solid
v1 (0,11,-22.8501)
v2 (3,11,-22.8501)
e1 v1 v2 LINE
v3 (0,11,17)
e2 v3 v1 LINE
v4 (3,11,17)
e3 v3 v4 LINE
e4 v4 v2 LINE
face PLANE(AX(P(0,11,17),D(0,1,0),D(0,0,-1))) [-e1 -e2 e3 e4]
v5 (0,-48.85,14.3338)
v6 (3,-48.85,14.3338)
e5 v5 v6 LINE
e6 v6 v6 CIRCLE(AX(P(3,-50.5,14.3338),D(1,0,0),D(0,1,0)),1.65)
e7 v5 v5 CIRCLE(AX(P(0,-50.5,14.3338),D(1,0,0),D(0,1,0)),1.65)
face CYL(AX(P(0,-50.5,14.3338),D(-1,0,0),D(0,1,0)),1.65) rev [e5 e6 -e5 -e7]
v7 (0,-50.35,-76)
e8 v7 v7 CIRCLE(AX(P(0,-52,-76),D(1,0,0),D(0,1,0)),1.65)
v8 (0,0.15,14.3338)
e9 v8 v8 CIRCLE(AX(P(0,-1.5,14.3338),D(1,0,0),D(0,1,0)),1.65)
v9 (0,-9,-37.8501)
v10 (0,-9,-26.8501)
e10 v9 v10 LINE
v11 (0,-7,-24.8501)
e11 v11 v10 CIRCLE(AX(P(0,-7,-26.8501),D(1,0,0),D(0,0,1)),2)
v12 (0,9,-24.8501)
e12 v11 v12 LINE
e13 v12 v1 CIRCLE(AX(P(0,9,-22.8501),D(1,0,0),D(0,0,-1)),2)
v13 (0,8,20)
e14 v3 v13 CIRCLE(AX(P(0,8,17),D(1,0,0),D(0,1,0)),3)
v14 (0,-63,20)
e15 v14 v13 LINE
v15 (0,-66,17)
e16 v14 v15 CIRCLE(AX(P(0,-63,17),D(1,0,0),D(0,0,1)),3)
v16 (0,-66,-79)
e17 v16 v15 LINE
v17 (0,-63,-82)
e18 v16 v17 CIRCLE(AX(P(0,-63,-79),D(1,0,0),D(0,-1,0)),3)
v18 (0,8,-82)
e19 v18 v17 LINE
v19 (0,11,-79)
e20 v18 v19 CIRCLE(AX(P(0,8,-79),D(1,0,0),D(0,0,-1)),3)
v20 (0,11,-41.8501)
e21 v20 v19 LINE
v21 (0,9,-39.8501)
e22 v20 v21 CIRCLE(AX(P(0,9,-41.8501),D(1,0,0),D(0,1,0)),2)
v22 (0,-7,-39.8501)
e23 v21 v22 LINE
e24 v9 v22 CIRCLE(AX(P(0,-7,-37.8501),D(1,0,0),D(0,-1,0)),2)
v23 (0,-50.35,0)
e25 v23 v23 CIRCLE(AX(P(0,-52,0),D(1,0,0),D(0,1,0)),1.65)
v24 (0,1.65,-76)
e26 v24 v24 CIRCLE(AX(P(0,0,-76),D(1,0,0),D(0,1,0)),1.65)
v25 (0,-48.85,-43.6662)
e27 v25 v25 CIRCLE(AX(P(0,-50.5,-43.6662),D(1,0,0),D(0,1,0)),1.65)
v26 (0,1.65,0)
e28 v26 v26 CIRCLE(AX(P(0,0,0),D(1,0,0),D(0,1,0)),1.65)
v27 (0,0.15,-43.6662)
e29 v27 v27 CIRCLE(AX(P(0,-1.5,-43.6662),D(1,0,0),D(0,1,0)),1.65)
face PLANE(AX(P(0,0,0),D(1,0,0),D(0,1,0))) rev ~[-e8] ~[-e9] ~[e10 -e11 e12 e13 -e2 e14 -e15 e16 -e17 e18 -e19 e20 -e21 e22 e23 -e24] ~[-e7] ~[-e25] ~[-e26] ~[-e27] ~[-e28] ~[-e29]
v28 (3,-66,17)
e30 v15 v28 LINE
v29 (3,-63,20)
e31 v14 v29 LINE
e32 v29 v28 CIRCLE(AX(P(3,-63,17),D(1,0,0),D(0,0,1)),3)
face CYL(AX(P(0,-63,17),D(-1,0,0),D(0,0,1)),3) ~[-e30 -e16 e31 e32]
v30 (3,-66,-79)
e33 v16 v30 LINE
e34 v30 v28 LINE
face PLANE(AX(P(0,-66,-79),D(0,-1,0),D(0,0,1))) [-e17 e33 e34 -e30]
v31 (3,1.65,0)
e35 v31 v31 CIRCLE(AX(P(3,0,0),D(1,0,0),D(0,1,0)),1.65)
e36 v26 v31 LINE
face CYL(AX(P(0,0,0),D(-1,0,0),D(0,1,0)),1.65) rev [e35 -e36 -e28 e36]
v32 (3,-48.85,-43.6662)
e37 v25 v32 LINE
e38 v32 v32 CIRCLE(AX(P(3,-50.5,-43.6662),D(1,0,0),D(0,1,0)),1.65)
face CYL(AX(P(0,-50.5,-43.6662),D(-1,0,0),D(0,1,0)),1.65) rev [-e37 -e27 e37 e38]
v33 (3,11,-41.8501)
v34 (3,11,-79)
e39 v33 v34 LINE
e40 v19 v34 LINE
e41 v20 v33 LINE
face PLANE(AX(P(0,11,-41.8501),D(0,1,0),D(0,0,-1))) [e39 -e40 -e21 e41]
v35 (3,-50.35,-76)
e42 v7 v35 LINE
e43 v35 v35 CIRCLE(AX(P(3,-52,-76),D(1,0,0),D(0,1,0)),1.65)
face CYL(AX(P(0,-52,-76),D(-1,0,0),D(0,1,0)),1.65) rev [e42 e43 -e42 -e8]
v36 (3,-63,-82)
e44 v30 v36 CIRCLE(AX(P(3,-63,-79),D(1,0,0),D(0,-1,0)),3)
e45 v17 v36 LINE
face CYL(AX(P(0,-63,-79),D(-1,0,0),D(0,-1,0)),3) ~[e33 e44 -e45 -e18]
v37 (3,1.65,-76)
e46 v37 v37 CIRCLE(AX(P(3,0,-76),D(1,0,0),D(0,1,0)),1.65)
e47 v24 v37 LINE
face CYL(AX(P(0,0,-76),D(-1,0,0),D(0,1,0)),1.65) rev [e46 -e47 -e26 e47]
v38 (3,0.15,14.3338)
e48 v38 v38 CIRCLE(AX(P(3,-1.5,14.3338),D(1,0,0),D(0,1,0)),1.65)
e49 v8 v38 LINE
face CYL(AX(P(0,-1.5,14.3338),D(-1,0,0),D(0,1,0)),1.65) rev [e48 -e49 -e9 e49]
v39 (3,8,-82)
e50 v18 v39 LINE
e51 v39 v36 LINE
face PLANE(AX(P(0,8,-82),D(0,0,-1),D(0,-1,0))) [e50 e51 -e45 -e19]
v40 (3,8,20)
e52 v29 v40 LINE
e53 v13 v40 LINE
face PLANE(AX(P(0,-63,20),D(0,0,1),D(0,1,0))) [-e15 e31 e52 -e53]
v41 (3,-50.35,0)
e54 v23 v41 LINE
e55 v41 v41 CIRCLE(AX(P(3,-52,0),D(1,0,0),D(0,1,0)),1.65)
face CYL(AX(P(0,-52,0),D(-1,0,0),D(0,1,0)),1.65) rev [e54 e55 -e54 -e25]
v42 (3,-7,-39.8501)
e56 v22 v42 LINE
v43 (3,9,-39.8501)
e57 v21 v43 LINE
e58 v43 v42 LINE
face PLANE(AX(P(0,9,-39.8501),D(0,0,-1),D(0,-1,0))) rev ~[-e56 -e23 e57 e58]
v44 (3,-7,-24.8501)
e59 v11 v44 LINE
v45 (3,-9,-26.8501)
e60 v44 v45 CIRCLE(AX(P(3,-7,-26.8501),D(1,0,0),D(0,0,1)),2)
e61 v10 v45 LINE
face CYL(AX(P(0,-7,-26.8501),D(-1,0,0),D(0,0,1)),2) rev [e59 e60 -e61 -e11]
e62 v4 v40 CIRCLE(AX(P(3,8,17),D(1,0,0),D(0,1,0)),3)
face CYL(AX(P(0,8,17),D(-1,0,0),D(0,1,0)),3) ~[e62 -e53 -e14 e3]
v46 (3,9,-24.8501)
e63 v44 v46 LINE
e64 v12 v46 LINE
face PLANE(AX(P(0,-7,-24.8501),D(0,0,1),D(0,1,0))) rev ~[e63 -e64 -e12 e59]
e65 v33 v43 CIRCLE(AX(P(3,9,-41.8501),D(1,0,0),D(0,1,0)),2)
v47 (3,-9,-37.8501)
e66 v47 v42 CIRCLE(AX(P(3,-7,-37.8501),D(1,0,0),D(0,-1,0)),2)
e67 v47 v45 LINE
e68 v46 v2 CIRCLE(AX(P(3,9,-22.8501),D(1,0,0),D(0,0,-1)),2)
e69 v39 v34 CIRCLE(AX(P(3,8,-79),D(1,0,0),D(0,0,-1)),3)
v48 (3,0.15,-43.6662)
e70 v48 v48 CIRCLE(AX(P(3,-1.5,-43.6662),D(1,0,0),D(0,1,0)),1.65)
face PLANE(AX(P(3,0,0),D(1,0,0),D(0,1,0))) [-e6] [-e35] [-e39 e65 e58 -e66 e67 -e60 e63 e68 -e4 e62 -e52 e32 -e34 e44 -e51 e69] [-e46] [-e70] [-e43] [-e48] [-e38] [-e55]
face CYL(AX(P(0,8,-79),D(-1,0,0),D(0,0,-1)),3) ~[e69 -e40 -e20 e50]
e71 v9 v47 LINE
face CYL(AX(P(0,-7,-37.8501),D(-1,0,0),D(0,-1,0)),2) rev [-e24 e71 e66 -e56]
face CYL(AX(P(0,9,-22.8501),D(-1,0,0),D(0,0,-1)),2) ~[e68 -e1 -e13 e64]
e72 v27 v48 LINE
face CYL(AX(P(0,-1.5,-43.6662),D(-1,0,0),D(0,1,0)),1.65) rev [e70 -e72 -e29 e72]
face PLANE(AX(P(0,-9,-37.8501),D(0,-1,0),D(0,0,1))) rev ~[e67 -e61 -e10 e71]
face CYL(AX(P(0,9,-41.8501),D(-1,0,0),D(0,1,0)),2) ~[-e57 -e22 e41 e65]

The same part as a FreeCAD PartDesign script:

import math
import FreeCAD as App
import Part
import Sketcher

V = App.Vector

doc = App.newDocument("Part")
body = doc.addObject("PartDesign::Body", "Body")

# Sketch on YZ plane
sketch1 = doc.addObject("Sketcher::SketchObject", "Sketch")
body.addObject(sketch1)
sketch1.AttachmentSupport = (doc.YZ_Plane, [""])
sketch1.MapMode = "FlatFace"
sketch1.addGeometry([
    Part.LineSegment(V(8, 20, 0), V(-63, 20, 0)),  # 0
    Part.ArcOfCircle(Part.Circle(V(-63, 17, 0), V(0, 0, 1), 3), math.radians(90), math.radians(180)),  # 1
    Part.LineSegment(V(-66, 17, 0), V(-66, -79, 0)),  # 2
    Part.ArcOfCircle(Part.Circle(V(-63, -79, 0), V(0, 0, 1), 3), math.radians(180), math.radians(270)),  # 3
    Part.LineSegment(V(-63, -82, 0), V(8, -82, 0)),  # 4
    Part.ArcOfCircle(Part.Circle(V(8, -79, 0), V(0, 0, 1), 3), math.radians(-90), math.radians(0)),  # 5
    Part.LineSegment(V(11, -79, 0), V(11, -41.8501, 0)),  # 6
    Part.ArcOfCircle(Part.Circle(V(9, -41.8501, 0), V(0, 0, 1), 2), math.radians(0), math.radians(90)),  # 7
    Part.LineSegment(V(9, -39.8501, 0), V(-7, -39.8501, 0)),  # 8
    Part.ArcOfCircle(Part.Circle(V(-7, -37.8501, 0), V(0, 0, 1), 2), math.radians(180), math.radians(270)),  # 9
    Part.LineSegment(V(-9, -37.8501, 0), V(-9, -26.8501, 0)),  # 10
    Part.ArcOfCircle(Part.Circle(V(-7, -26.8501, 0), V(0, 0, 1), 2), math.radians(90), math.radians(180)),  # 11
    Part.LineSegment(V(-7, -24.8501, 0), V(9, -24.8501, 0)),  # 12
    Part.ArcOfCircle(Part.Circle(V(9, -22.8501, 0), V(0, 0, 1), 2), math.radians(-90), math.radians(0)),  # 13
    Part.LineSegment(V(11, -22.8501, 0), V(11, 17, 0)),  # 14
    Part.ArcOfCircle(Part.Circle(V(8, 17, 0), V(0, 0, 1), 3), math.radians(0), math.radians(90)),  # 15
    Part.Circle(V(-52, -76, 0), V(0, 0, 1), 1.65),  # 16
    Part.Circle(V(-50.5, -43.6662, 0), V(0, 0, 1), 1.65),  # 17
    Part.Circle(V(0, -76, 0), V(0, 0, 1), 1.65),  # 18
    Part.Circle(V(-1.5, -43.6662, 0), V(0, 0, 1), 1.65),  # 19
    Part.Circle(V(-52, 0, 0), V(0, 0, 1), 1.65),  # 20
    Part.Circle(V(-50.5, 14.3338, 0), V(0, 0, 1), 1.65),  # 21
    Part.Circle(V(0, 0, 0), V(0, 0, 1), 1.65),  # 22
    Part.Circle(V(-1.5, 14.3338, 0), V(0, 0, 1), 1.65),  # 23
], False)
sketch1.addConstraint([
    Sketcher.Constraint("Tangent", 0, 2, 1, 1),
    Sketcher.Constraint("Tangent", 1, 2, 2, 1),
    Sketcher.Constraint("Tangent", 2, 2, 3, 1),
    Sketcher.Constraint("Tangent", 3, 2, 4, 1),
    Sketcher.Constraint("Tangent", 4, 2, 5, 1),
    Sketcher.Constraint("Tangent", 5, 2, 6, 1),
    Sketcher.Constraint("Tangent", 6, 2, 7, 1),
    Sketcher.Constraint("Tangent", 7, 2, 8, 1),
    Sketcher.Constraint("Tangent", 8, 2, 9, 2),
    Sketcher.Constraint("Tangent", 9, 1, 10, 1),
    Sketcher.Constraint("Tangent", 10, 2, 11, 2),
    Sketcher.Constraint("Tangent", 11, 1, 12, 1),
    Sketcher.Constraint("Tangent", 12, 2, 13, 1),
    Sketcher.Constraint("Tangent", 13, 2, 14, 1),
    Sketcher.Constraint("Tangent", 14, 2, 15, 1),
    Sketcher.Constraint("Tangent", 15, 2, 0, 1),
    Sketcher.Constraint("Horizontal", 0),
    Sketcher.Constraint("Vertical", 2),
    Sketcher.Constraint("Horizontal", 4),
    Sketcher.Constraint("Vertical", 6),
    Sketcher.Constraint("Horizontal", 8),
    Sketcher.Constraint("Vertical", 10),
    Sketcher.Constraint("Horizontal", 12),
    Sketcher.Constraint("Vertical", 14),
    Sketcher.Constraint("Coincident", 22, 3, -1, 1),
    Sketcher.Constraint("Equal", 1, 3),
    Sketcher.Constraint("Equal", 3, 5),
    Sketcher.Constraint("Equal", 7, 9),
    Sketcher.Constraint("Equal", 9, 11),
    Sketcher.Constraint("Equal", 11, 13),
    Sketcher.Constraint("Equal", 5, 15),
    Sketcher.Constraint("Equal", 16, 17),
    Sketcher.Constraint("Equal", 17, 18),
    Sketcher.Constraint("Equal", 18, 19),
    Sketcher.Constraint("Equal", 19, 20),
    Sketcher.Constraint("Equal", 20, 21),
    Sketcher.Constraint("Equal", 21, 22),
    Sketcher.Constraint("Equal", 22, 23),
    Sketcher.Constraint("PointOnObject", 18, 3, -2),
    Sketcher.Constraint("PointOnObject", 20, 3, -1),
    Sketcher.Constraint("Horizontal", 16, 3, 18, 3),
    Sketcher.Constraint("Horizontal", 17, 3, 19, 3),
    Sketcher.Constraint("Horizontal", 21, 3, 23, 3),
    Sketcher.Constraint("Vertical", 7, 3, 13, 3),
    Sketcher.Constraint("Vertical", 16, 3, 20, 3),
    Sketcher.Constraint("Vertical", 17, 3, 21, 3),
    Sketcher.Constraint("Vertical", 19, 3, 23, 3),
    Sketcher.Constraint("Radius", 1, 3.0),
    Sketcher.Constraint("Radius", 7, 2.0),
    Sketcher.Constraint("Diameter", 16, 3.3),
    Sketcher.Constraint("DistanceX", 16, 3, -1, 1, 52.0),
    Sketcher.Constraint("DistanceY", -1, 1, 0, 2, 20.0),
    Sketcher.Constraint("DistanceX", 9, 3, 5, 3, 15.0),
    Sketcher.Constraint("DistanceY", 7, 3, 11, 3, 15.0),
    Sketcher.Constraint("DistanceY", 3, 3, 16, 3, 3.0),
    Sketcher.Constraint("DistanceX", 0, 2, 0, 1, 71.0),
    Sketcher.Constraint("DistanceY", 2, 2, 2, 1, 96.0),
    Sketcher.Constraint("DistanceX", 1, 3, -1, 1, 63.0),
    Sketcher.Constraint("DistanceY", 17, 3, 21, 3, 58.0),
    Sketcher.Constraint("DistanceX", 21, 3, 23, 3, 49.0),
    Sketcher.Constraint("DistanceY", 6, 1, 6, 2, 37.15),
    Sketcher.Constraint("DistanceX", 17, 3, -1, 1, 50.5),
    Sketcher.Constraint("DistanceY", 17, 3, 9, 3, 5.816),
])
pad1 = doc.addObject("PartDesign::Pad", "Pad")
body.addObject(pad1)
pad1.Profile = sketch1
pad1.Length = 3

doc.recompute()
